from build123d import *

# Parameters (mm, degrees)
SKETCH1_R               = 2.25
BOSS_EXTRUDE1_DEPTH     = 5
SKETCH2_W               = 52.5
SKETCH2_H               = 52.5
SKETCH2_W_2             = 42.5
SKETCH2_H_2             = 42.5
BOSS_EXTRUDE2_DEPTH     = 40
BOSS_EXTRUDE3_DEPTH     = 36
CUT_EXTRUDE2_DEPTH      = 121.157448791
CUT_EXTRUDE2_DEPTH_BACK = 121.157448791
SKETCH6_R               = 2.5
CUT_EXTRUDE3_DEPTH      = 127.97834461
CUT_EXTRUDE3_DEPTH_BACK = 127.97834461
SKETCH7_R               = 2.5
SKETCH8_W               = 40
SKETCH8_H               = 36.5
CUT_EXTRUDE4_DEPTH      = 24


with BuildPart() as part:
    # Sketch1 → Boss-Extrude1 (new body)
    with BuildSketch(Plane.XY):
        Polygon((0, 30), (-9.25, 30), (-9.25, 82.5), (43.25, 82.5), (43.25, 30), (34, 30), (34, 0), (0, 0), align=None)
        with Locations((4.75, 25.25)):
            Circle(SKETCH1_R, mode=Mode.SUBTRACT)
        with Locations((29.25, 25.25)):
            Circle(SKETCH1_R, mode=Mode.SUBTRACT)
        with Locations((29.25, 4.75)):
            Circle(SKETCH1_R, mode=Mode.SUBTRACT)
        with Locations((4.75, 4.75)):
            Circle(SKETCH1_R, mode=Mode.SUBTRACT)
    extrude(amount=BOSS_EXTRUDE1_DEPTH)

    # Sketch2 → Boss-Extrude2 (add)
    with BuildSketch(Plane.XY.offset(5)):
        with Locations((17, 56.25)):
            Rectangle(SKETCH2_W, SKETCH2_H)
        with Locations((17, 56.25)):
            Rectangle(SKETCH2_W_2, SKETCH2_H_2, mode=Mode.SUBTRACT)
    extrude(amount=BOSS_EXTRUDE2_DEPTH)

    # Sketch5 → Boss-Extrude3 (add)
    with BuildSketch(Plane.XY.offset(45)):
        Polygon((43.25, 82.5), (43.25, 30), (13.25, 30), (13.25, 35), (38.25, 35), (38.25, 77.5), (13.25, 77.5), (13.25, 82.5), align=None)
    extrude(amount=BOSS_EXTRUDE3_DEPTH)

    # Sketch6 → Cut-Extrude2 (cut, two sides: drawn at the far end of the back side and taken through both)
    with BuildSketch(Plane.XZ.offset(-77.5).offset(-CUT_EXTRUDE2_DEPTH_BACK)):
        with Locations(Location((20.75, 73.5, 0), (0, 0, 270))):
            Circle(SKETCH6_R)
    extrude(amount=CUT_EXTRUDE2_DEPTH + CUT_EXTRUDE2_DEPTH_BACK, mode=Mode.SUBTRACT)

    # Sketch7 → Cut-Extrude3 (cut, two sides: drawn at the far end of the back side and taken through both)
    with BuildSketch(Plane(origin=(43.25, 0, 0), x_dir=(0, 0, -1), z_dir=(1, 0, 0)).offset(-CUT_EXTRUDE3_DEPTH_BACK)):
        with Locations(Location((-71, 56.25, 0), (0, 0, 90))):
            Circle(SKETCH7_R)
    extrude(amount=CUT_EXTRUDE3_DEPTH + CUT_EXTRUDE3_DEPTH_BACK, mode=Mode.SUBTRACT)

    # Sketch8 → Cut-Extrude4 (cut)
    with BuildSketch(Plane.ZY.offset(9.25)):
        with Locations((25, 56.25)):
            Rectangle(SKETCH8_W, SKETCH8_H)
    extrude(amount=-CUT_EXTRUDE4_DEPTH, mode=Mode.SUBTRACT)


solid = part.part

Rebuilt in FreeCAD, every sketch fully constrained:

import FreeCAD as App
import Part
import Sketcher

V = App.Vector


def add_polygon(sketch, points):
    """Adds a closed chain of lines whose ends are joined by coincident constraints."""
    first, n = sketch.GeometryCount, len(points)
    for a, b in zip(points, points[1:] + points[:1]):
        sketch.addGeometry(Part.LineSegment(App.Vector(*a, 0), App.Vector(*b, 0)), False)
    for i in range(n):
        sketch.addConstraint(Sketcher.Constraint("Coincident", first + i, 2, first + (i + 1) % n, 1))

doc = App.newDocument("Part")
body = doc.addObject("PartDesign::Body", "Body")

# Sketch on XY plane
sketch1 = body.newObject("Sketcher::SketchObject", "Sketch")
sketch1.AttachmentSupport = (doc.getObject("XY_Plane"), [""])
sketch1.MapMode = "FlatFace"
add_polygon(sketch1, [(-9.2, 30), (0, 30), (0, 0), (34, 0), (34, 30), (43.2, 30), (43.2, 82.5), (-9.2, 82.5)])  # lines 0-7
sketch1.addGeometry(Part.Circle(V(29.2, 4.8, 0), V(0, 0, 1), 2.2), False)  # 8
sketch1.addGeometry(Part.Circle(V(4.8, 4.8, 0), V(0, 0, 1), 2.2), False)  # 9
sketch1.addGeometry(Part.Circle(V(29.2, 25.2, 0), V(0, 0, 1), 2.2), False)  # 10
sketch1.addGeometry(Part.Circle(V(4.8, 25.2, 0), V(0, 0, 1), 2.2), False)  # 11
sketch1.addConstraint([
    Sketcher.Constraint("Horizontal", 0),
    Sketcher.Constraint("Vertical", 1),
    Sketcher.Constraint("Horizontal", 2),
    Sketcher.Constraint("Vertical", 3),
    Sketcher.Constraint("Horizontal", 4),
    Sketcher.Constraint("Vertical", 5),
    Sketcher.Constraint("Horizontal", 6),
    Sketcher.Constraint("Vertical", 7),
    Sketcher.Constraint("Coincident", 1, 2, -1, 1),
    Sketcher.Constraint("Equal", 8, 9),
    Sketcher.Constraint("Equal", 9, 10),
    Sketcher.Constraint("Equal", 10, 11),
    Sketcher.Constraint("Horizontal", 8, 3, 9, 3),
    Sketcher.Constraint("Horizontal", 10, 3, 11, 3),
    Sketcher.Constraint("Horizontal", 0, 2, 3, 2),
    Sketcher.Constraint("Vertical", 8, 3, 10, 3),
    Sketcher.Constraint("Vertical", 9, 3, 11, 3),
    Sketcher.Constraint("Equal", 0, 4),
    Sketcher.Constraint("Equal", 6, 5),
    Sketcher.Constraint("Diameter", 8, 4.5),
    Sketcher.Constraint("DistanceX", 2, 1, 2, 2, 34.0),
    Sketcher.Constraint("DistanceY", 1, 2, 1, 1, 30.0),
    Sketcher.Constraint("DistanceX", 6, 2, 6, 1, 52.5),
    Sketcher.Constraint("DistanceX", 10, 3, 4, 2, 14.0),
    Sketcher.Constraint("DistanceX", 6, 2, 11, 3, 14.0),
    Sketcher.Constraint("DistanceY", 8, 3, 10, 3, 20.5),
    Sketcher.Constraint("DistanceY", -1, 1, 8, 3, 4.75),
])
pad1 = body.newObject("PartDesign::Pad", "Pad")
pad1.Profile = sketch1
pad1.Length = 5

# Sketch on XY plane
sketch2 = body.newObject("Sketcher::SketchObject", "Sketch001")
sketch2.AttachmentSupport = (doc.getObject("XY_Plane"), [""])
sketch2.MapMode = "FlatFace"
sketch2.AttachmentOffset = App.Placement(V(0, 0, 5), App.Rotation())
add_polygon(sketch2, [(-9, 82), (-9, 30), (43, 30), (43, 82)])  # lines 0-3
add_polygon(sketch2, [(38, 35), (-4, 35), (-4, 78), (38, 78)])  # lines 4-7
sketch2.addConstraint([
    Sketcher.Constraint("Vertical", 0),
    Sketcher.Constraint("Horizontal", 1),
    Sketcher.Constraint("Vertical", 2),
    Sketcher.Constraint("Horizontal", 3),
    Sketcher.Constraint("Horizontal", 4),
    Sketcher.Constraint("Vertical", 5),
    Sketcher.Constraint("Horizontal", 6),
    Sketcher.Constraint("Vertical", 7),
    Sketcher.Constraint("Equal", 3, 0),
    Sketcher.Constraint("Equal", 6, 5),
    Sketcher.Constraint("DistanceX", 1, 1, 1, 2, 52.5),
    Sketcher.Constraint("DistanceX", 4, 2, 4, 1, 42.5),
    Sketcher.Constraint("DistanceY", -1, 1, 0, 2, 30.0),
    Sketcher.Constraint("DistanceY", -1, 1, 4, 2, 35.0),
    Sketcher.Constraint("DistanceX", 0, 2, 4, 2, 5.0),
    Sketcher.Constraint("DistanceX", 0, 2, -1, 1, 9.25),
])
pad2 = body.newObject("PartDesign::Pad", "Pad001")
pad2.Profile = sketch2
pad2.Length = 40

# Sketch on XY plane
sketch3 = body.newObject("Sketcher::SketchObject", "Sketch002")
sketch3.AttachmentSupport = (doc.getObject("XY_Plane"), [""])
sketch3.MapMode = "FlatFace"
sketch3.AttachmentOffset = App.Placement(V(0, 0, 45), App.Rotation())
add_polygon(sketch3, [(43, 30), (43, 82), (13, 82), (13, 78), (38, 78), (38, 35), (13, 35), (13, 30)])  # lines 0-7
sketch3.addConstraint([
    Sketcher.Constraint("Vertical", 0),
    Sketcher.Constraint("Horizontal", 1),
    Sketcher.Constraint("Vertical", 2),
    Sketcher.Constraint("Horizontal", 3),
    Sketcher.Constraint("Vertical", 4),
    Sketcher.Constraint("Horizontal", 5),
    Sketcher.Constraint("Vertical", 6),
    Sketcher.Constraint("Horizontal", 7),
    Sketcher.Constraint("Vertical", 2, 2, 5, 2),
    Sketcher.Constraint("Equal", 2, 6),
    Sketcher.Constraint("DistanceX", 1, 2, 1, 1, 30.0),
    Sketcher.Constraint("DistanceX", 3, 1, 3, 2, 25.0),
    Sketcher.Constraint("DistanceY", 2, 2, 2, 1, 5.0),
    Sketcher.Constraint("DistanceY", 0, 1, 0, 2, 52.5),
    Sketcher.Constraint("DistanceY", -1, 1, 4, 2, 35.0),
    Sketcher.Constraint("DistanceX", -1, 1, 0, 2, 43.25),
])
pad3 = body.newObject("PartDesign::Pad", "Pad002")
pad3.Profile = sketch3
pad3.Length = 36

# Sketch on XZ plane
sketch4 = body.newObject("Sketcher::SketchObject", "Sketch003")
sketch4.AttachmentSupport = (doc.getObject("XZ_Plane"), [""])
sketch4.MapMode = "FlatFace"
sketch4.AttachmentOffset = App.Placement(V(0, 0, -77.5), App.Rotation())
sketch4.addGeometry(Part.Circle(V(20.8, 73.5, 0), V(0, 0, 1), 2.5), False)
sketch4.addConstraint([
    Sketcher.Constraint("Diameter", 0, 5.0),
    Sketcher.Constraint("DistanceY", -1, 1, 0, 3, 73.5),
    Sketcher.Constraint("DistanceX", -1, 1, 0, 3, 20.75),
])
pocket1 = body.newObject("PartDesign::Pocket", "Pocket")
pocket1.Profile = sketch4
pocket1.Type = "ThroughAll"
pocket1.Midplane = True

# Sketch on YZ plane
sketch5 = body.newObject("Sketcher::SketchObject", "Sketch004")
sketch5.AttachmentSupport = (doc.getObject("YZ_Plane"), [""])
sketch5.MapMode = "FlatFace"
sketch5.AttachmentOffset = App.Placement(V(0, 0, 43.25), App.Rotation())
sketch5.addGeometry(Part.Circle(V(56.2, 71, 0), V(0, 0, 1), 2.5), False)
sketch5.addConstraint([
    Sketcher.Constraint("Diameter", 0, 5.0),
    Sketcher.Constraint("DistanceY", -1, 1, 0, 3, 71.0),
    Sketcher.Constraint("DistanceX", -1, 1, 0, 3, 56.25),
])
pocket2 = body.newObject("PartDesign::Pocket", "Pocket001")
pocket2.Profile = sketch5
pocket2.Type = "ThroughAll"
pocket2.Midplane = True

# Sketch on YZ plane
sketch6 = body.newObject("Sketcher::SketchObject", "Sketch005")
sketch6.AttachmentSupport = (doc.getObject("YZ_Plane"), [""])
sketch6.MapMode = "FlatFace"
sketch6.AttachmentOffset = App.Placement(V(0, 0, -9.25), App.Rotation())
add_polygon(sketch6, [(74, 5), (38, 5), (38, 45), (74, 45)])  # lines 0-3
sketch6.addConstraint([
    Sketcher.Constraint("Horizontal", 0),
    Sketcher.Constraint("Vertical", 1),
    Sketcher.Constraint("Horizontal", 2),
    Sketcher.Constraint("Vertical", 3),
    Sketcher.Constraint("DistanceY", 1, 1, 1, 2, 40.0),
    Sketcher.Constraint("DistanceX", 0, 2, 0, 1, 36.5),
    Sketcher.Constraint("DistanceX", -1, 1, 0, 2, 38.0),
    Sketcher.Constraint("DistanceY", -1, 1, 0, 2, 5.0),
])
pocket3 = body.newObject("PartDesign::Pocket", "Pocket002")
pocket3.Profile = sketch6
pocket3.Length = 24
pocket3.Reversed = True

doc.recompute()
